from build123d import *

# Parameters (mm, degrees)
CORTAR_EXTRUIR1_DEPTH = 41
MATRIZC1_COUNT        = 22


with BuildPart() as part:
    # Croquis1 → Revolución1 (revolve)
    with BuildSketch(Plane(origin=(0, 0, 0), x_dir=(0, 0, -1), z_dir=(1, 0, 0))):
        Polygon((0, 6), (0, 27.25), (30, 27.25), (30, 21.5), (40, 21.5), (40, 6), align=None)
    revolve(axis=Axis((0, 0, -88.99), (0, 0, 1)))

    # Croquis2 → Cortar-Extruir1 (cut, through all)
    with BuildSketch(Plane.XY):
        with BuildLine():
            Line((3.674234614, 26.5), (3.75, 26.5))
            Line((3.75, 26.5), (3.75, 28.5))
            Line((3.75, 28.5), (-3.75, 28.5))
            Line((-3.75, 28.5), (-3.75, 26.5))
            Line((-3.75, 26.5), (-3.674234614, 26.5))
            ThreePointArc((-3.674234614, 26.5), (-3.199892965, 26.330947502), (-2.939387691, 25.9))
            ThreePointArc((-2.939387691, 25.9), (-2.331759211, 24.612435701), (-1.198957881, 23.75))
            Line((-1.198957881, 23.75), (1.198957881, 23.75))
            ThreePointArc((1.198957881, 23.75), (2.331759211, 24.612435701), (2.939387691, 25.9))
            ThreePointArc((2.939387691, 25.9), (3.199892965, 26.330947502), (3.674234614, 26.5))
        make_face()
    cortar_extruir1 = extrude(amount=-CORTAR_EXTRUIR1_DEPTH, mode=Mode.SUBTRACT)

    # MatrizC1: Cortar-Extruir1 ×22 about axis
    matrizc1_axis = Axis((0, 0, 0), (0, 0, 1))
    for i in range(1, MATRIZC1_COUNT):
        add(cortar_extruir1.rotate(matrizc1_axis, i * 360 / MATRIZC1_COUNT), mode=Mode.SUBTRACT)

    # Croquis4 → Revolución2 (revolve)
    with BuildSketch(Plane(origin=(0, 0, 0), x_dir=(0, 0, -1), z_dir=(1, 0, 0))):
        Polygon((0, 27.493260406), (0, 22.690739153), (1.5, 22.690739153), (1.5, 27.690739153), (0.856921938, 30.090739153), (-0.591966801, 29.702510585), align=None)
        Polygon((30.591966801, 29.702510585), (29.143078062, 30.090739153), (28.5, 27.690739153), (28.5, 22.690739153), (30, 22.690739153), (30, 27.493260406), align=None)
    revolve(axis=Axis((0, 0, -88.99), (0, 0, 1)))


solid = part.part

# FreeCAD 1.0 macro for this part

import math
import FreeCAD as App
import Part
import Sketcher
from FreeCAD import Vector
Q = App.Units.Quantity

doc = App.newDocument("Part")
body = doc.addObject("PartDesign::Body", "Body")

sketch1 = doc.addObject("Sketcher::SketchObject", "Sketch")
body.addObject(sketch1)
sketch1.AttachmentSupport = (doc.YZ_Plane, [""])
sketch1.MapMode = "FlatFace"
sketch1.addGeometry(Part.LineSegment(Vector(27.25, 0, 0), Vector(6, 0, 0)), False)
sketch1.addGeometry(Part.LineSegment(Vector(6, 0, 0), Vector(6, -40, 0)), False)
sketch1.addGeometry(Part.LineSegment(Vector(6, -40, 0), Vector(21.5, -40, 0)), False)
sketch1.addGeometry(Part.LineSegment(Vector(21.5, -40, 0), Vector(21.5, -30, 0)), False)
sketch1.addGeometry(Part.LineSegment(Vector(21.5, -30, 0), Vector(27.25, -30, 0)), False)
sketch1.addGeometry(Part.LineSegment(Vector(27.25, -30, 0), Vector(27.25, 0, 0)), False)
sketch1.addConstraint(Sketcher.Constraint("Coincident", 0, 2, 1, 1))
sketch1.addConstraint(Sketcher.Constraint("Coincident", 1, 2, 2, 1))
sketch1.addConstraint(Sketcher.Constraint("Coincident", 2, 2, 3, 1))
sketch1.addConstraint(Sketcher.Constraint("Coincident", 3, 2, 4, 1))
sketch1.addConstraint(Sketcher.Constraint("Coincident", 4, 2, 5, 1))
sketch1.addConstraint(Sketcher.Constraint("Coincident", 5, 2, 0, 1))
sketch1.addConstraint(Sketcher.Constraint("Horizontal", 0))
sketch1.addConstraint(Sketcher.Constraint("Vertical", 1))
sketch1.addConstraint(Sketcher.Constraint("Horizontal", 2))
sketch1.addConstraint(Sketcher.Constraint("Vertical", 3))
sketch1.addConstraint(Sketcher.Constraint("Horizontal", 4))
sketch1.addConstraint(Sketcher.Constraint("Vertical", 5))
sketch1.addConstraint(Sketcher.Constraint("PointOnObject", 0, 2, -1))
sketch1.addConstraint(Sketcher.Constraint("DistanceY", 1, 2, 1, 1, Q("40 mm")))
sketch1.addConstraint(Sketcher.Constraint("DistanceY", 3, 1, 3, 2, Q("10 mm")))
sketch1.addConstraint(Sketcher.Constraint("DistanceX", 2, 1, 2, 2, Q("15.5 mm")))
sketch1.addConstraint(Sketcher.Constraint("DistanceX", -1, 1, 0, 2, Q("6 mm")))
sketch1.addConstraint(Sketcher.Constraint("DistanceX", 0, 2, 0, 1, Q("21.25 mm")))
revolution = doc.addObject("PartDesign::Revolution", "Revolution")
body.addObject(revolution)
revolution.Profile = sketch1
revolution.ReferenceAxis = (sketch1, ["V_Axis"])
revolution.Angle = 360

sketch2 = doc.addObject("Sketcher::SketchObject", "Sketch001")
body.addObject(sketch2)
sketch2.AttachmentSupport = (doc.XY_Plane, [""])
sketch2.MapMode = "FlatFace"
sketch2.addGeometry(Part.LineSegment(Vector(3.674235, 26.5, 0), Vector(3.75, 26.5, 0)), False)
sketch2.addGeometry(Part.LineSegment(Vector(3.75, 26.5, 0), Vector(3.75, 28.5, 0)), False)
sketch2.addGeometry(Part.LineSegment(Vector(3.75, 28.5, 0), Vector(-3.75, 28.5, 0)), False)
sketch2.addGeometry(Part.LineSegment(Vector(-3.75, 28.5, 0), Vector(-3.75, 26.5, 0)), False)
sketch2.addGeometry(Part.LineSegment(Vector(-3.75, 26.5, 0), Vector(-3.674235, 26.5, 0)), False)
sketch2.addGeometry(Part.ArcOfCircle(Part.Circle(Vector(-3.674235, 25.75, 0), Vector(0, 0, 1), 0.75), math.radians(11.536959), math.radians(90)), False)
sketch2.addGeometry(Part.ArcOfCircle(Part.Circle(Vector(0, 26.5, 0), Vector(0, 0, 1), 3), math.radians(-168.463041), math.radians(-113.556464)), False)
sketch2.addGeometry(Part.LineSegment(Vector(-1.198958, 23.75, 0), Vector(1.198958, 23.75, 0)), False)
sketch2.addGeometry(Part.ArcOfCircle(Part.Circle(Vector(0, 26.5, 0), Vector(0, 0, 1), 3), math.radians(-66.443536), math.radians(-11.536959)), False)
sketch2.addGeometry(Part.ArcOfCircle(Part.Circle(Vector(3.674235, 25.75, 0), Vector(0, 0, 1), 0.75), math.radians(90), math.radians(168.463041)), False)
sketch2.addConstraint(Sketcher.Constraint("Coincident", 0, 2, 1, 1))
sketch2.addConstraint(Sketcher.Constraint("Coincident", 1, 2, 2, 1))
sketch2.addConstraint(Sketcher.Constraint("Coincident", 2, 2, 3, 1))
sketch2.addConstraint(Sketcher.Constraint("Coincident", 3, 2, 4, 1))
sketch2.addConstraint(Sketcher.Constraint("Tangent", 4, 2, 5, 2))
sketch2.addConstraint(Sketcher.Constraint("Tangent", 5, 1, 6, 1))
sketch2.addConstraint(Sketcher.Constraint("Coincident", 6, 2, 7, 1))
sketch2.addConstraint(Sketcher.Constraint("Coincident", 7, 2, 8, 1))
sketch2.addConstraint(Sketcher.Constraint("Tangent", 8, 2, 9, 2))
sketch2.addConstraint(Sketcher.Constraint("Tangent", 9, 1, 0, 1))
sketch2.addConstraint(Sketcher.Constraint("Horizontal", 0))
sketch2.addConstraint(Sketcher.Constraint("Vertical", 1))
sketch2.addConstraint(Sketcher.Constraint("Horizontal", 2))
sketch2.addConstraint(Sketcher.Constraint("Vertical", 3))
sketch2.addConstraint(Sketcher.Constraint("Horizontal", 4))
sketch2.addConstraint(Sketcher.Constraint("Horizontal", 7))
sketch2.addConstraint(Sketcher.Constraint("Coincident", 8, 3, 6, 3))
sketch2.addConstraint(Sketcher.Constraint("Equal", 6, 8))
sketch2.addConstraint(Sketcher.Constraint("Equal", 5, 9))
sketch2.addConstraint(Sketcher.Constraint("Symmetric", 5, 3, 9, 3, -2))
sketch2.addConstraint(Sketcher.Constraint("Horizontal", 8, 3, 0, 2))
sketch2.addConstraint(Sketcher.Constraint("Equal", 0, 4))
sketch2.addConstraint(Sketcher.Constraint("Radius", 6, Q("3 mm")))
sketch2.addConstraint(Sketcher.Constraint("DistanceY", 1, 1, 1, 2, Q("2 mm")))
sketch2.addConstraint(Sketcher.Constraint("Radius", 5, Q("0.75 mm")))
sketch2.addConstraint(Sketcher.Constraint("DistanceX", 2, 2, 2, 1, Q("7.5 mm")))
sketch2.addConstraint(Sketcher.Constraint("DistanceY", 6, 2, 5, 3, Q("2 mm")))
sketch2.addConstraint(Sketcher.Constraint("DistanceY", -1, 1, 6, 3, Q("26.5 mm")))
pocket1 = doc.addObject("PartDesign::Pocket", "Pocket")
body.addObject(pocket1)
pocket1.Profile = sketch2
pocket1.Type = "ThroughAll"
doc.recompute()

polarpattern = doc.addObject("PartDesign::PolarPattern", "PolarPattern")
body.addObject(polarpattern)
polarpattern.Originals = [pocket1]
polarpattern.Axis = (doc.Z_Axis, [""])
polarpattern.Angle = 360
polarpattern.Occurrences = 22
body.Tip = polarpattern

sketch3 = doc.addObject("Sketcher::SketchObject", "Sketch002")
body.addObject(sketch3)
sketch3.AttachmentSupport = (doc.YZ_Plane, [""])
sketch3.MapMode = "FlatFace"
sketch3.addGeometry(Part.LineSegment(Vector(27.49326, 0, 0), Vector(22.690739, 0, 0)), False)
sketch3.addGeometry(Part.LineSegment(Vector(22.690739, 0, 0), Vector(22.690739, -1.5, 0)), False)
sketch3.addGeometry(Part.LineSegment(Vector(22.690739, -1.5, 0), Vector(27.690739, -1.5, 0)), False)
sketch3.addGeometry(Part.LineSegment(Vector(27.690739, -1.5, 0), Vector(30.090739, -0.856922, 0)), False)
sketch3.addGeometry(Part.LineSegment(Vector(30.090739, -0.856922, 0), Vector(29.702511, 0.591967, 0)), False)
sketch3.addGeometry(Part.LineSegment(Vector(29.702511, 0.591967, 0), Vector(27.49326, 0, 0)), False)
sketch3.addGeometry(Part.LineSegment(Vector(29.702511, -30.591967, 0), Vector(30.090739, -29.143078, 0)), False)
sketch3.addGeometry(Part.LineSegment(Vector(30.090739, -29.143078, 0), Vector(27.690739, -28.5, 0)), False)
sketch3.addGeometry(Part.LineSegment(Vector(27.690739, -28.5, 0), Vector(22.690739, -28.5, 0)), False)
sketch3.addGeometry(Part.LineSegment(Vector(22.690739, -28.5, 0), Vector(22.690739, -30, 0)), False)
sketch3.addGeometry(Part.LineSegment(Vector(22.690739, -30, 0), Vector(27.49326, -30, 0)), False)
sketch3.addGeometry(Part.LineSegment(Vector(27.49326, -30, 0), Vector(29.702511, -30.591967, 0)), False)
sketch3.addConstraint(Sketcher.Constraint("Coincident", 0, 2, 1, 1))
sketch3.addConstraint(Sketcher.Constraint("Coincident", 1, 2, 2, 1))
sketch3.addConstraint(Sketcher.Constraint("Coincident", 2, 2, 3, 1))
sketch3.addConstraint(Sketcher.Constraint("Coincident", 3, 2, 4, 1))
sketch3.addConstraint(Sketcher.Constraint("Coincident", 4, 2, 5, 1))
sketch3.addConstraint(Sketcher.Constraint("Coincident", 5, 2, 0, 1))
sketch3.addConstraint(Sketcher.Constraint("Coincident", 6, 2, 7, 1))
sketch3.addConstraint(Sketcher.Constraint("Coincident", 7, 2, 8, 1))
sketch3.addConstraint(Sketcher.Constraint("Coincident", 8, 2, 9, 1))
sketch3.addConstraint(Sketcher.Constraint("Coincident", 9, 2, 10, 1))
sketch3.addConstraint(Sketcher.Constraint("Coincident", 10, 2, 11, 1))
sketch3.addConstraint(Sketcher.Constraint("Coincident", 11, 2, 6, 1))
sketch3.addConstraint(Sketcher.Constraint("Horizontal", 0))
sketch3.addConstraint(Sketcher.Constraint("Vertical", 1))
sketch3.addConstraint(Sketcher.Constraint("Horizontal", 2))
sketch3.addConstraint(Sketcher.Constraint("Horizontal", 8))
sketch3.addConstraint(Sketcher.Constraint("Vertical", 9))
sketch3.addConstraint(Sketcher.Constraint("Horizontal", 10))
sketch3.addConstraint(Sketcher.Constraint("PointOnObject", 0, 2, -1))
sketch3.addConstraint(Sketcher.Constraint("Perpendicular", 3, 4))
sketch3.addConstraint(Sketcher.Constraint("Perpendicular", 4, 5))
sketch3.addConstraint(Sketcher.Constraint("Perpendicular", 6, 7))
sketch3.addConstraint(Sketcher.Constraint("Parallel", 7, 11))
sketch3.addConstraint(Sketcher.Constraint("Vertical", 3, 2, 6, 2))
sketch3.addConstraint(Sketcher.Constraint("Vertical", 2, 2, 7, 2))
sketch3.addConstraint(Sketcher.Constraint("Vertical", 1, 2, 8, 2))
sketch3.addConstraint(Sketcher.Constraint("Vertical", 5, 2, 10, 2))
sketch3.addConstraint(Sketcher.Constraint("Vertical", 4, 2, 11, 2))
sketch3.addConstraint(Sketcher.Constraint("Equal", 1, 9))
sketch3.addConstraint(Sketcher.Constraint("DistanceX", 2, 1, 2, 2, Q("5 mm")))
sketch3.addConstraint(Sketcher.Constraint("Angle", 3, Q("15 deg")))
sketch3.addConstraint(Sketcher.Constraint("DistanceY", 1, 2, 1, 1, Q("1.5 mm")))
sketch3.addConstraint(Sketcher.Constraint("DistanceY", 9, 2, -1, 1, Q("30 mm")))
sketch3.addConstraint(Sketcher.Constraint("Distance", 4, Q("1.5 mm")))
sketch3.addConstraint(Sketcher.Constraint("DistanceX", 2, 2, 3, 2, Q("2.4 mm")))
sketch3.addConstraint(Sketcher.Constraint("DistanceX", -1, 1, 0, 2, Q("22.690739 mm")))
revolution2 = doc.addObject("PartDesign::Revolution", "Revolution001")
body.addObject(revolution2)
revolution2.Profile = sketch3
revolution2.ReferenceAxis = (sketch3, ["V_Axis"])
revolution2.Angle = 360

doc.recompute()
